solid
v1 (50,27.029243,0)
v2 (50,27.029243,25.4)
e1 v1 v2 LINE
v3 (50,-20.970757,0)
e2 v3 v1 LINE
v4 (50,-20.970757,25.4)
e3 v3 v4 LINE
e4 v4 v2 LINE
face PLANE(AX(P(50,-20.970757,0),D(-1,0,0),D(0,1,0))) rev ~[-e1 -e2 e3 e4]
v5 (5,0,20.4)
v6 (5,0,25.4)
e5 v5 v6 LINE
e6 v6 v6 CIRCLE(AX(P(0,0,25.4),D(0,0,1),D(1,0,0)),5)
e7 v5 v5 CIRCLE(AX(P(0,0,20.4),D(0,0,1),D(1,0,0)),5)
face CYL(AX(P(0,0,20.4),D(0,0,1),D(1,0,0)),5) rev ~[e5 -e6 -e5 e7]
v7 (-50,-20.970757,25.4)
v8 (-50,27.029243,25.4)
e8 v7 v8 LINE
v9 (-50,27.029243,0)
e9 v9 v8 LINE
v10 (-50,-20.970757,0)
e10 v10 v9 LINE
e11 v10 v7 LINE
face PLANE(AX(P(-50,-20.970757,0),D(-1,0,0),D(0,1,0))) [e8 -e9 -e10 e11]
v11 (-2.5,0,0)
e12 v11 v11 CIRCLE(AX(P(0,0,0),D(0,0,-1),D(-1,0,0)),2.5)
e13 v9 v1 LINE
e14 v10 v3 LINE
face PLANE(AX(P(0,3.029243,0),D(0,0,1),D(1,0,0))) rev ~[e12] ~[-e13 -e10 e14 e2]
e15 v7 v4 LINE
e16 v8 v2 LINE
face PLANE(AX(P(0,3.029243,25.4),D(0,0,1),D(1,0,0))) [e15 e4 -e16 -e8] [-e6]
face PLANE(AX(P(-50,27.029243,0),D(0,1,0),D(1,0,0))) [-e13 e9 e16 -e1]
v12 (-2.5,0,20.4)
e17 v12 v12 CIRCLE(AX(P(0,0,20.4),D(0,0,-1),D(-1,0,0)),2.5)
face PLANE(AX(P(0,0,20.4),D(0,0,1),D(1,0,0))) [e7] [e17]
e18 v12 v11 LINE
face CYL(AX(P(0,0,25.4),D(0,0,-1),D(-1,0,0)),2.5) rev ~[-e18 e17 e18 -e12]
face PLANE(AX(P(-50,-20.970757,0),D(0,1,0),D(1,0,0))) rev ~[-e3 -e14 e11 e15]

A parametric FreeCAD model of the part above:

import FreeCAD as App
import Part
import Sketcher

V = App.Vector
Q = App.Units.Quantity


def add_polygon(sketch, points):
    """Adds a closed chain of lines whose ends are joined by coincident constraints."""
    first, n = sketch.GeometryCount, len(points)
    for a, b in zip(points, points[1:] + points[:1]):
        sketch.addGeometry(Part.LineSegment(App.Vector(*a, 0), App.Vector(*b, 0)), False)
    for i in range(n):
        sketch.addConstraint(Sketcher.Constraint("Coincident", first + i, 2, first + (i + 1) % n, 1))

doc = App.newDocument("Part")
body = doc.addObject("PartDesign::Body", "Body")

# Sketch on XY plane
sketch1 = doc.addObject("Sketcher::SketchObject", "Sketch")
body.addObject(sketch1)
sketch1.AttachmentSupport = (doc.XY_Plane, [""])
sketch1.MapMode = "FlatFace"
add_polygon(sketch1, [(-50, 27), (-50, -21), (50, -21), (50, 27)])  # lines 0-3
sketch1.addConstraint([
    Sketcher.Constraint("Vertical", 0),
    Sketcher.Constraint("Horizontal", 1),
    Sketcher.Constraint("Vertical", 2),
    Sketcher.Constraint("Horizontal", 3),
    Sketcher.Constraint("DistanceX", 1, 1, 1, 2, Q("100 mm")),
    Sketcher.Constraint("DistanceY", 0, 2, 0, 1, Q("48 mm")),
    Sketcher.Constraint("DistanceX", 0, 2, -1, 1, Q("50 mm")),
    Sketcher.Constraint("DistanceY", 0, 2, -1, 1, Q("20.970757 mm")),
])
pad1 = doc.addObject("PartDesign::Pad", "Pad")
body.addObject(pad1)
pad1.Profile = sketch1
pad1.Length = 25.4

# Sketch on XY plane
sketch2 = doc.addObject("Sketcher::SketchObject", "Sketch001")
body.addObject(sketch2)
sketch2.AttachmentSupport = (doc.XY_Plane, [""])
sketch2.MapMode = "FlatFace"
sketch2.AttachmentOffset = App.Placement(V(0, 0, 25.4), App.Rotation())
sketch2.addGeometry(Part.Circle(V(0, 0, 0), V(0, 0, 1), 2.5), False)
sketch2.addConstraint([
    Sketcher.Constraint("Coincident", 0, 3, -1, 1),
    Sketcher.Constraint("Diameter", 0, Q("5 mm")),
])
doc.recompute()
hole = doc.addObject("PartDesign::Hole", "Hole")
body.addObject(hole)
hole.Profile = sketch2
hole.ThreadType = "None"
hole.Diameter = 5
hole.DepthType = "ThroughAll"
hole.HoleCutType = "Counterbore"
hole.HoleCutDiameter = 10
hole.HoleCutDepth = 5

doc.recompute()
